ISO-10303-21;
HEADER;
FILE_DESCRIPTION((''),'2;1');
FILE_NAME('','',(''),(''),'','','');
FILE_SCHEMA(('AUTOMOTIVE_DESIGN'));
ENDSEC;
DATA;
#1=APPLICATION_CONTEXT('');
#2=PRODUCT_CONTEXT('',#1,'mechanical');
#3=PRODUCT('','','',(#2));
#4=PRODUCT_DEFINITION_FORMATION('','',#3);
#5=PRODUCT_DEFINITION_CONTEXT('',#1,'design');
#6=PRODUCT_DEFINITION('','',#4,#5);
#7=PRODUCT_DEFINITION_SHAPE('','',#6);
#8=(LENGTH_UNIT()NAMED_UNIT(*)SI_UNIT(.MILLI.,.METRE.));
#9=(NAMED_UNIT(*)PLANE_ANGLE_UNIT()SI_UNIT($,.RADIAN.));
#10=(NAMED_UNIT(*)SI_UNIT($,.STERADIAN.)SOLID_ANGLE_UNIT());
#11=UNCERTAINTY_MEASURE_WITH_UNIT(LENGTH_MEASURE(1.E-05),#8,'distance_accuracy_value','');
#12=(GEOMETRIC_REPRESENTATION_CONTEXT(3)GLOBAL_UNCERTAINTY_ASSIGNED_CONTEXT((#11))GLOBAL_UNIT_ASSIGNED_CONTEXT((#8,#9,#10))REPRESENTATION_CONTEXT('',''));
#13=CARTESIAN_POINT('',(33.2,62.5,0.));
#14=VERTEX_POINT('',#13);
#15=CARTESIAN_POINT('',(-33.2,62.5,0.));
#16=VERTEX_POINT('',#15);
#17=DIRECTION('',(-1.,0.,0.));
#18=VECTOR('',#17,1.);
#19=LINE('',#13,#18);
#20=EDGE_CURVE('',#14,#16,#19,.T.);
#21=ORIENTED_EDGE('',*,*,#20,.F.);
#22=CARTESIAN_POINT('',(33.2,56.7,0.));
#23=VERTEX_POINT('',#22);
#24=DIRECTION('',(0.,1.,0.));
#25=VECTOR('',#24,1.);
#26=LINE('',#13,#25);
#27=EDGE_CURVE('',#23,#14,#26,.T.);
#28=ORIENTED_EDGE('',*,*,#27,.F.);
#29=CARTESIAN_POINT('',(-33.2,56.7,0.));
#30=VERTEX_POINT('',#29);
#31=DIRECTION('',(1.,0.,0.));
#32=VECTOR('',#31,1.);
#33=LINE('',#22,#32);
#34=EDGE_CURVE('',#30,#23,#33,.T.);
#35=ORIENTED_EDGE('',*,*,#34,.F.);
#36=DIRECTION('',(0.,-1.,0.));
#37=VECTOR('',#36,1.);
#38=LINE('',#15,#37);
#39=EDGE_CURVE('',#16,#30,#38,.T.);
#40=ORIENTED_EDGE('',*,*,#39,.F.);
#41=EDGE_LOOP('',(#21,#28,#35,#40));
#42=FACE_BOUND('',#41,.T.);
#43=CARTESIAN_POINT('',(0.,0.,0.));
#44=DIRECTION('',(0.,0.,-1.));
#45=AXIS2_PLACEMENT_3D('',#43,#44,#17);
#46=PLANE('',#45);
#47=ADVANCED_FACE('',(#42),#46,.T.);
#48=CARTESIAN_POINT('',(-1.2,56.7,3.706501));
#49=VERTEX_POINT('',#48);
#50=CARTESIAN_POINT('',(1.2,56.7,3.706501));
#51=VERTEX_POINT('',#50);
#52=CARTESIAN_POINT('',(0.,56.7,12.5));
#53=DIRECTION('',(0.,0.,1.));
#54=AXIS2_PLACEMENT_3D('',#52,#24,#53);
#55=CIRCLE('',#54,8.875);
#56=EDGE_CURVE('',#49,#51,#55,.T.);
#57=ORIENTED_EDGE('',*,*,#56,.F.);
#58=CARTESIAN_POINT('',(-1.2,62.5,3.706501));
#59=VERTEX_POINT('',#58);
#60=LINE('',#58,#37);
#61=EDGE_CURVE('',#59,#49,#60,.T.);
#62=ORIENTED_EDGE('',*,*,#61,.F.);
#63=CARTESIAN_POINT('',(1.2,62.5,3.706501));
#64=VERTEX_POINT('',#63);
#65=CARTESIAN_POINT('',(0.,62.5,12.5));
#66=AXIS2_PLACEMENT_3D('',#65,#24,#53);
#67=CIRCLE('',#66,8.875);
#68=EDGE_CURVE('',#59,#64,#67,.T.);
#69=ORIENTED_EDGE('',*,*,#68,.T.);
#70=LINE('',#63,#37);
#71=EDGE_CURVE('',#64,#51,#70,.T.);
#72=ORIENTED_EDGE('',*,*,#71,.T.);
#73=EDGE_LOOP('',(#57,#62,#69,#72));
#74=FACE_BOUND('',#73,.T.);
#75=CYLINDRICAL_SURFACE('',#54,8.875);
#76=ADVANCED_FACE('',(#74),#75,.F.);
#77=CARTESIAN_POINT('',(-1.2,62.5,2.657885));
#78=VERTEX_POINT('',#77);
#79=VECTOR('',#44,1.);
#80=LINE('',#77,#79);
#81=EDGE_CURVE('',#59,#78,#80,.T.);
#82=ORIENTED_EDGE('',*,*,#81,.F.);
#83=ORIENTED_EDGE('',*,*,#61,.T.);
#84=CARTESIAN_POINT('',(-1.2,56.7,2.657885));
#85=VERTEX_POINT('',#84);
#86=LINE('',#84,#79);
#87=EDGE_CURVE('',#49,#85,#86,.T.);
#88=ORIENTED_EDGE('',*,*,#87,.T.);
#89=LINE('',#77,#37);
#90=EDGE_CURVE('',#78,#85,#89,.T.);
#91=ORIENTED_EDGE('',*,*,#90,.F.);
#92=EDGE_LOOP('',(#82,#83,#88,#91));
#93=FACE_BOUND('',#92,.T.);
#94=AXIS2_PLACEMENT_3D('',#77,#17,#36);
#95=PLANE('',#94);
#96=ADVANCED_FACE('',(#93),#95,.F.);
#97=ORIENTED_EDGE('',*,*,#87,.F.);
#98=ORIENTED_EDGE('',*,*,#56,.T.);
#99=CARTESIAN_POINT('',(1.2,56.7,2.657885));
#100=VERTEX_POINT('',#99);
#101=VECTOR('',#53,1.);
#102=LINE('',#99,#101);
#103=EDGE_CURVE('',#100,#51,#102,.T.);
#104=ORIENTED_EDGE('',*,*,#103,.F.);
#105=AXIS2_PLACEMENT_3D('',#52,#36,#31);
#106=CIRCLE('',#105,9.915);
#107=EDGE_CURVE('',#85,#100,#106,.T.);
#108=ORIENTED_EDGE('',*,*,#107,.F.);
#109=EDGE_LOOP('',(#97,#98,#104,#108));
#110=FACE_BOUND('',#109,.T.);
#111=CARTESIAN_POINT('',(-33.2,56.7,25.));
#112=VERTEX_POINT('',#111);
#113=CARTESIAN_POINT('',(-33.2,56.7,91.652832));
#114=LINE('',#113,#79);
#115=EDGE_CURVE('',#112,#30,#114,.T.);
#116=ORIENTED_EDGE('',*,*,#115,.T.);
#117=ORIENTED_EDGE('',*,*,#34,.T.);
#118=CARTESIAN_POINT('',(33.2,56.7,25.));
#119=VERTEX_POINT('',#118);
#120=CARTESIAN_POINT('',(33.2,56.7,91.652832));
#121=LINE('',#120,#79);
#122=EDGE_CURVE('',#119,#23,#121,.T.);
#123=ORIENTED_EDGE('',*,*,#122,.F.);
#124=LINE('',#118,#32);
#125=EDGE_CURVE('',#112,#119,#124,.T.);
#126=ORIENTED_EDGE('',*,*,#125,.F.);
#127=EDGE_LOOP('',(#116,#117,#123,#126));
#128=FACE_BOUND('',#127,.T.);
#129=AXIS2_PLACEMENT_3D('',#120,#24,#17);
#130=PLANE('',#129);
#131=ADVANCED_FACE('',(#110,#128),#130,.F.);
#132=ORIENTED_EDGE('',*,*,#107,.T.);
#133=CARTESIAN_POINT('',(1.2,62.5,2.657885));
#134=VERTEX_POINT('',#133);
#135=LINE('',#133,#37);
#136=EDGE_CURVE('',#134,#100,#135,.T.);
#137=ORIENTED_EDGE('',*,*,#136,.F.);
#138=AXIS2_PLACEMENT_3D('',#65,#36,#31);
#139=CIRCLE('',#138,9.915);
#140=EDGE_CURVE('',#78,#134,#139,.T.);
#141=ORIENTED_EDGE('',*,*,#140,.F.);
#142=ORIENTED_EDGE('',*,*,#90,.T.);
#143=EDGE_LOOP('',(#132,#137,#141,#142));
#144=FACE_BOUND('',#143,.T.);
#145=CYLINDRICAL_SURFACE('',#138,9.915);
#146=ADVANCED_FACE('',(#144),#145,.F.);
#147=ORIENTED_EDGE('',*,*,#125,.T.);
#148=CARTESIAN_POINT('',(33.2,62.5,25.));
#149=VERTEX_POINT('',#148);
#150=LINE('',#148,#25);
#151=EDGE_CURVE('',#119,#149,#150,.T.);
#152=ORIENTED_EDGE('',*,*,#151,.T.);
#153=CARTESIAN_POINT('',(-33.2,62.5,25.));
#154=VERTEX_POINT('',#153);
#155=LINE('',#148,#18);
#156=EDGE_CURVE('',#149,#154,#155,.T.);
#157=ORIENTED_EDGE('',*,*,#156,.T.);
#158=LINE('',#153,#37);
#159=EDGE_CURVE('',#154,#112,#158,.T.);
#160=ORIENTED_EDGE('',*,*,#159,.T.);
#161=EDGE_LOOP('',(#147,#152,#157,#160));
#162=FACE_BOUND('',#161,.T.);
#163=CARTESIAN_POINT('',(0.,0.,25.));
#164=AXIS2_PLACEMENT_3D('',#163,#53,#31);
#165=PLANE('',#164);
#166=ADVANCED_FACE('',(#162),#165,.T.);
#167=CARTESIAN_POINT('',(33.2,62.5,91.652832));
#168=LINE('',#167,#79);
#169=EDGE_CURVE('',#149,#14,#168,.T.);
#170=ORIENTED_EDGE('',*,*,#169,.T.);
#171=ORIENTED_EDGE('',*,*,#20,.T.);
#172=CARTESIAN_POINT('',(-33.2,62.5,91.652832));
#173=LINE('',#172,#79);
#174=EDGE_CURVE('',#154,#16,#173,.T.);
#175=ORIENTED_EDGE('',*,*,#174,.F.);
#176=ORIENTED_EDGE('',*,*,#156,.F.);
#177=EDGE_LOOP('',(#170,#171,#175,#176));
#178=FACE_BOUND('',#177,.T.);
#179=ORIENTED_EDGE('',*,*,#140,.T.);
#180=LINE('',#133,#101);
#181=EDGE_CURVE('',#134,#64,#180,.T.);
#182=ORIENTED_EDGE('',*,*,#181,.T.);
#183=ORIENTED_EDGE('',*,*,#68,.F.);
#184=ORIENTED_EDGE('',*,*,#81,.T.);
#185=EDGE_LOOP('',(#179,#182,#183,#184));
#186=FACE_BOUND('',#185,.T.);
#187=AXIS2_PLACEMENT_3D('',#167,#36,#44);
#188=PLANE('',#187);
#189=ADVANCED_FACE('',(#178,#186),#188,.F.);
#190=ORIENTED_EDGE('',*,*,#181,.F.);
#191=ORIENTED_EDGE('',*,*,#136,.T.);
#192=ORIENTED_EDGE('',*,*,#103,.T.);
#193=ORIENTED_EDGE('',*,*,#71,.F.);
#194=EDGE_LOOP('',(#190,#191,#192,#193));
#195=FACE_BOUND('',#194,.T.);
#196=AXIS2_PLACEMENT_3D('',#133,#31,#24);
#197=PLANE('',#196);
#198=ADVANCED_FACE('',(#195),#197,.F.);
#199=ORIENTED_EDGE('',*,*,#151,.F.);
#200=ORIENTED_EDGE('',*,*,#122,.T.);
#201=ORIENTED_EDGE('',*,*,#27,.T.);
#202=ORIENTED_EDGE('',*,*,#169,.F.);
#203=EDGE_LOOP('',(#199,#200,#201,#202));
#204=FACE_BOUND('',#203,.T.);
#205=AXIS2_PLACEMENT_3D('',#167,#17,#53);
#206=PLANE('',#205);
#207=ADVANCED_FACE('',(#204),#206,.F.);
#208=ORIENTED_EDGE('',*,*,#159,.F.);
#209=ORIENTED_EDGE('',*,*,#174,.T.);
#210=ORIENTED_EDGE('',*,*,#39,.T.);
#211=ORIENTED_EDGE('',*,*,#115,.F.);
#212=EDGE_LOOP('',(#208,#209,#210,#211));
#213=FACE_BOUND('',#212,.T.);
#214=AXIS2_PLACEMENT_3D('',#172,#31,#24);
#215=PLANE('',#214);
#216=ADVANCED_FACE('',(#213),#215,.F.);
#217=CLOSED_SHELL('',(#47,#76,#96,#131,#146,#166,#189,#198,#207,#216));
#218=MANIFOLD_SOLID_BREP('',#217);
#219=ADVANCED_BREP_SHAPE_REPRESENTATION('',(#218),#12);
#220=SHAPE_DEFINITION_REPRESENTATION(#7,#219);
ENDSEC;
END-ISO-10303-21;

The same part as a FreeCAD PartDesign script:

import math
import FreeCAD as App
import Part
import Sketcher

V = App.Vector
Q = App.Units.Quantity


def add_polygon(sketch, points):
    """Adds a closed chain of lines whose ends are joined by coincident constraints."""
    first, n = sketch.GeometryCount, len(points)
    for a, b in zip(points, points[1:] + points[:1]):
        sketch.addGeometry(Part.LineSegment(App.Vector(*a, 0), App.Vector(*b, 0)), False)
    for i in range(n):
        sketch.addConstraint(Sketcher.Constraint("Coincident", first + i, 2, first + (i + 1) % n, 1))

doc = App.newDocument("Part")
params = doc.addObject("Spreadsheet::Sheet", "Params")
for row, (alias, value) in enumerate([
    ("sketch1_width", "66.4 mm"),
    ("sketch1_height", "5.8 mm"),
    ("pad1_length", "25 mm"),
    ("sketch2_diameter", "17.75 mm"),
    ("sketch3_width", "2.4 mm"),
], start=1):
    params.set(f"A{row}", alias)
    params.set(f"B{row}", "=" + value)
    params.setAlias(f"B{row}", alias)

body = doc.addObject("PartDesign::Body", "Body")

# Sketch on XY plane
sketch1 = doc.addObject("Sketcher::SketchObject", "Sketch")
body.addObject(sketch1)
sketch1.AttachmentSupport = (doc.XY_Plane, [""])
sketch1.MapMode = "FlatFace"
add_polygon(sketch1, [(-33, 62), (-33, 57), (33, 57), (33, 62)])  # lines 0-3
sketch1.addConstraint(Sketcher.Constraint("Vertical", 0))
sketch1.addConstraint(Sketcher.Constraint("Horizontal", 1))
sketch1.addConstraint(Sketcher.Constraint("Vertical", 2))
sketch1.addConstraint(Sketcher.Constraint("Horizontal", 3))
sketch1.addConstraint(Sketcher.Constraint("DistanceX", 1, 1, 1, 2, Q("66.4 mm")))
sketch1.addConstraint(Sketcher.Constraint("DistanceY", 0, 2, 0, 1, Q("5.8 mm")))
sketch1.addConstraint(Sketcher.Constraint("DistanceX", 0, 2, -1, 1, Q("33.2 mm")))
sketch1.addConstraint(Sketcher.Constraint("DistanceY", -1, 1, 0, 2, Q("56.7 mm")))
sketch1.setExpression("Constraints[8]", "Params.sketch1_width")
sketch1.setExpression("Constraints[9]", "Params.sketch1_height")
pad1 = doc.addObject("PartDesign::Pad", "Pad")
body.addObject(pad1)
pad1.Profile = sketch1
pad1.setExpression("Length", "Params.pad1_length")

# Sketch on XZ plane
sketch2 = doc.addObject("Sketcher::SketchObject", "Sketch001")
body.addObject(sketch2)
sketch2.AttachmentSupport = (doc.XZ_Plane, [""])
sketch2.MapMode = "FlatFace"
sketch2.AttachmentOffset = App.Placement(V(0, 0, -62.5), App.Rotation())
sketch2.addGeometry(Part.Circle(V(0, 13, 0), V(0, 0, 1), 9), False)
sketch2.addConstraint(Sketcher.Constraint("PointOnObject", 0, 3, -2))
sketch2.addConstraint(Sketcher.Constraint("Diameter", 0, Q("17.75 mm")))
sketch2.addConstraint(Sketcher.Constraint("DistanceY", -1, 1, 0, 3, Q("12.5 mm")))
sketch2.setExpression("Constraints[1]", "Params.sketch2_diameter")
pocket1 = doc.addObject("PartDesign::Pocket", "Pocket")
body.addObject(pocket1)
pocket1.Profile = sketch2
pocket1.Type = "ThroughAll"
pocket1.Reversed = True

# Sketch on XZ plane
sketch3 = doc.addObject("Sketcher::SketchObject", "Sketch002")
body.addObject(sketch3)
sketch3.AttachmentSupport = (doc.XZ_Plane, [""])
sketch3.MapMode = "FlatFace"
sketch3.AttachmentOffset = App.Placement(V(0, 0, -56.7), App.Rotation())
sketch3.addGeometry(Part.LineSegment(V(1.2, 3.7, 0), V(-1.2, 3.7, 0)), False)
sketch3.addGeometry(Part.LineSegment(V(-1.2, 3.7, 0), V(-1.2, 2.7, 0)), False)
sketch3.addGeometry(Part.ArcOfCircle(Part.Circle(V(0, 12.5, 0), V(0, 0, 1), 9.9), math.radians(-96.95), math.radians(-83.05)), False)
sketch3.addGeometry(Part.LineSegment(V(1.2, 2.7, 0), V(1.2, 3.7, 0)), False)
sketch3.addConstraint(Sketcher.Constraint("Coincident", 0, 2, 1, 1))
sketch3.addConstraint(Sketcher.Constraint("Coincident", 1, 2, 2, 1))
sketch3.addConstraint(Sketcher.Constraint("Coincident", 2, 2, 3, 1))
sketch3.addConstraint(Sketcher.Constraint("Coincident", 3, 2, 0, 1))
sketch3.addConstraint(Sketcher.Constraint("Horizontal", 0))
sketch3.addConstraint(Sketcher.Constraint("Vertical", 1))
sketch3.addConstraint(Sketcher.Constraint("Vertical", 3))
sketch3.addConstraint(Sketcher.Constraint("Symmetric", 1, 2, 2, 2, -2))
sketch3.addConstraint(Sketcher.Constraint("DistanceX", 0, 2, 0, 1, Q("2.4 mm")))
sketch3.addConstraint(Sketcher.Constraint("Radius", 2, Q("9.915 mm")))
sketch3.addConstraint(Sketcher.Constraint("DistanceY", -1, 1, 2, 3, Q("12.5 mm")))
sketch3.addConstraint(Sketcher.Constraint("DistanceY", -1, 1, 0, 2, Q("3.706501 mm")))
sketch3.setExpression("Constraints[8]", "Params.sketch3_width")
pocket2 = doc.addObject("PartDesign::Pocket", "Pocket001")
body.addObject(pocket2)
pocket2.Profile = sketch3
pocket2.Type = "ThroughAll"

doc.recompute()
